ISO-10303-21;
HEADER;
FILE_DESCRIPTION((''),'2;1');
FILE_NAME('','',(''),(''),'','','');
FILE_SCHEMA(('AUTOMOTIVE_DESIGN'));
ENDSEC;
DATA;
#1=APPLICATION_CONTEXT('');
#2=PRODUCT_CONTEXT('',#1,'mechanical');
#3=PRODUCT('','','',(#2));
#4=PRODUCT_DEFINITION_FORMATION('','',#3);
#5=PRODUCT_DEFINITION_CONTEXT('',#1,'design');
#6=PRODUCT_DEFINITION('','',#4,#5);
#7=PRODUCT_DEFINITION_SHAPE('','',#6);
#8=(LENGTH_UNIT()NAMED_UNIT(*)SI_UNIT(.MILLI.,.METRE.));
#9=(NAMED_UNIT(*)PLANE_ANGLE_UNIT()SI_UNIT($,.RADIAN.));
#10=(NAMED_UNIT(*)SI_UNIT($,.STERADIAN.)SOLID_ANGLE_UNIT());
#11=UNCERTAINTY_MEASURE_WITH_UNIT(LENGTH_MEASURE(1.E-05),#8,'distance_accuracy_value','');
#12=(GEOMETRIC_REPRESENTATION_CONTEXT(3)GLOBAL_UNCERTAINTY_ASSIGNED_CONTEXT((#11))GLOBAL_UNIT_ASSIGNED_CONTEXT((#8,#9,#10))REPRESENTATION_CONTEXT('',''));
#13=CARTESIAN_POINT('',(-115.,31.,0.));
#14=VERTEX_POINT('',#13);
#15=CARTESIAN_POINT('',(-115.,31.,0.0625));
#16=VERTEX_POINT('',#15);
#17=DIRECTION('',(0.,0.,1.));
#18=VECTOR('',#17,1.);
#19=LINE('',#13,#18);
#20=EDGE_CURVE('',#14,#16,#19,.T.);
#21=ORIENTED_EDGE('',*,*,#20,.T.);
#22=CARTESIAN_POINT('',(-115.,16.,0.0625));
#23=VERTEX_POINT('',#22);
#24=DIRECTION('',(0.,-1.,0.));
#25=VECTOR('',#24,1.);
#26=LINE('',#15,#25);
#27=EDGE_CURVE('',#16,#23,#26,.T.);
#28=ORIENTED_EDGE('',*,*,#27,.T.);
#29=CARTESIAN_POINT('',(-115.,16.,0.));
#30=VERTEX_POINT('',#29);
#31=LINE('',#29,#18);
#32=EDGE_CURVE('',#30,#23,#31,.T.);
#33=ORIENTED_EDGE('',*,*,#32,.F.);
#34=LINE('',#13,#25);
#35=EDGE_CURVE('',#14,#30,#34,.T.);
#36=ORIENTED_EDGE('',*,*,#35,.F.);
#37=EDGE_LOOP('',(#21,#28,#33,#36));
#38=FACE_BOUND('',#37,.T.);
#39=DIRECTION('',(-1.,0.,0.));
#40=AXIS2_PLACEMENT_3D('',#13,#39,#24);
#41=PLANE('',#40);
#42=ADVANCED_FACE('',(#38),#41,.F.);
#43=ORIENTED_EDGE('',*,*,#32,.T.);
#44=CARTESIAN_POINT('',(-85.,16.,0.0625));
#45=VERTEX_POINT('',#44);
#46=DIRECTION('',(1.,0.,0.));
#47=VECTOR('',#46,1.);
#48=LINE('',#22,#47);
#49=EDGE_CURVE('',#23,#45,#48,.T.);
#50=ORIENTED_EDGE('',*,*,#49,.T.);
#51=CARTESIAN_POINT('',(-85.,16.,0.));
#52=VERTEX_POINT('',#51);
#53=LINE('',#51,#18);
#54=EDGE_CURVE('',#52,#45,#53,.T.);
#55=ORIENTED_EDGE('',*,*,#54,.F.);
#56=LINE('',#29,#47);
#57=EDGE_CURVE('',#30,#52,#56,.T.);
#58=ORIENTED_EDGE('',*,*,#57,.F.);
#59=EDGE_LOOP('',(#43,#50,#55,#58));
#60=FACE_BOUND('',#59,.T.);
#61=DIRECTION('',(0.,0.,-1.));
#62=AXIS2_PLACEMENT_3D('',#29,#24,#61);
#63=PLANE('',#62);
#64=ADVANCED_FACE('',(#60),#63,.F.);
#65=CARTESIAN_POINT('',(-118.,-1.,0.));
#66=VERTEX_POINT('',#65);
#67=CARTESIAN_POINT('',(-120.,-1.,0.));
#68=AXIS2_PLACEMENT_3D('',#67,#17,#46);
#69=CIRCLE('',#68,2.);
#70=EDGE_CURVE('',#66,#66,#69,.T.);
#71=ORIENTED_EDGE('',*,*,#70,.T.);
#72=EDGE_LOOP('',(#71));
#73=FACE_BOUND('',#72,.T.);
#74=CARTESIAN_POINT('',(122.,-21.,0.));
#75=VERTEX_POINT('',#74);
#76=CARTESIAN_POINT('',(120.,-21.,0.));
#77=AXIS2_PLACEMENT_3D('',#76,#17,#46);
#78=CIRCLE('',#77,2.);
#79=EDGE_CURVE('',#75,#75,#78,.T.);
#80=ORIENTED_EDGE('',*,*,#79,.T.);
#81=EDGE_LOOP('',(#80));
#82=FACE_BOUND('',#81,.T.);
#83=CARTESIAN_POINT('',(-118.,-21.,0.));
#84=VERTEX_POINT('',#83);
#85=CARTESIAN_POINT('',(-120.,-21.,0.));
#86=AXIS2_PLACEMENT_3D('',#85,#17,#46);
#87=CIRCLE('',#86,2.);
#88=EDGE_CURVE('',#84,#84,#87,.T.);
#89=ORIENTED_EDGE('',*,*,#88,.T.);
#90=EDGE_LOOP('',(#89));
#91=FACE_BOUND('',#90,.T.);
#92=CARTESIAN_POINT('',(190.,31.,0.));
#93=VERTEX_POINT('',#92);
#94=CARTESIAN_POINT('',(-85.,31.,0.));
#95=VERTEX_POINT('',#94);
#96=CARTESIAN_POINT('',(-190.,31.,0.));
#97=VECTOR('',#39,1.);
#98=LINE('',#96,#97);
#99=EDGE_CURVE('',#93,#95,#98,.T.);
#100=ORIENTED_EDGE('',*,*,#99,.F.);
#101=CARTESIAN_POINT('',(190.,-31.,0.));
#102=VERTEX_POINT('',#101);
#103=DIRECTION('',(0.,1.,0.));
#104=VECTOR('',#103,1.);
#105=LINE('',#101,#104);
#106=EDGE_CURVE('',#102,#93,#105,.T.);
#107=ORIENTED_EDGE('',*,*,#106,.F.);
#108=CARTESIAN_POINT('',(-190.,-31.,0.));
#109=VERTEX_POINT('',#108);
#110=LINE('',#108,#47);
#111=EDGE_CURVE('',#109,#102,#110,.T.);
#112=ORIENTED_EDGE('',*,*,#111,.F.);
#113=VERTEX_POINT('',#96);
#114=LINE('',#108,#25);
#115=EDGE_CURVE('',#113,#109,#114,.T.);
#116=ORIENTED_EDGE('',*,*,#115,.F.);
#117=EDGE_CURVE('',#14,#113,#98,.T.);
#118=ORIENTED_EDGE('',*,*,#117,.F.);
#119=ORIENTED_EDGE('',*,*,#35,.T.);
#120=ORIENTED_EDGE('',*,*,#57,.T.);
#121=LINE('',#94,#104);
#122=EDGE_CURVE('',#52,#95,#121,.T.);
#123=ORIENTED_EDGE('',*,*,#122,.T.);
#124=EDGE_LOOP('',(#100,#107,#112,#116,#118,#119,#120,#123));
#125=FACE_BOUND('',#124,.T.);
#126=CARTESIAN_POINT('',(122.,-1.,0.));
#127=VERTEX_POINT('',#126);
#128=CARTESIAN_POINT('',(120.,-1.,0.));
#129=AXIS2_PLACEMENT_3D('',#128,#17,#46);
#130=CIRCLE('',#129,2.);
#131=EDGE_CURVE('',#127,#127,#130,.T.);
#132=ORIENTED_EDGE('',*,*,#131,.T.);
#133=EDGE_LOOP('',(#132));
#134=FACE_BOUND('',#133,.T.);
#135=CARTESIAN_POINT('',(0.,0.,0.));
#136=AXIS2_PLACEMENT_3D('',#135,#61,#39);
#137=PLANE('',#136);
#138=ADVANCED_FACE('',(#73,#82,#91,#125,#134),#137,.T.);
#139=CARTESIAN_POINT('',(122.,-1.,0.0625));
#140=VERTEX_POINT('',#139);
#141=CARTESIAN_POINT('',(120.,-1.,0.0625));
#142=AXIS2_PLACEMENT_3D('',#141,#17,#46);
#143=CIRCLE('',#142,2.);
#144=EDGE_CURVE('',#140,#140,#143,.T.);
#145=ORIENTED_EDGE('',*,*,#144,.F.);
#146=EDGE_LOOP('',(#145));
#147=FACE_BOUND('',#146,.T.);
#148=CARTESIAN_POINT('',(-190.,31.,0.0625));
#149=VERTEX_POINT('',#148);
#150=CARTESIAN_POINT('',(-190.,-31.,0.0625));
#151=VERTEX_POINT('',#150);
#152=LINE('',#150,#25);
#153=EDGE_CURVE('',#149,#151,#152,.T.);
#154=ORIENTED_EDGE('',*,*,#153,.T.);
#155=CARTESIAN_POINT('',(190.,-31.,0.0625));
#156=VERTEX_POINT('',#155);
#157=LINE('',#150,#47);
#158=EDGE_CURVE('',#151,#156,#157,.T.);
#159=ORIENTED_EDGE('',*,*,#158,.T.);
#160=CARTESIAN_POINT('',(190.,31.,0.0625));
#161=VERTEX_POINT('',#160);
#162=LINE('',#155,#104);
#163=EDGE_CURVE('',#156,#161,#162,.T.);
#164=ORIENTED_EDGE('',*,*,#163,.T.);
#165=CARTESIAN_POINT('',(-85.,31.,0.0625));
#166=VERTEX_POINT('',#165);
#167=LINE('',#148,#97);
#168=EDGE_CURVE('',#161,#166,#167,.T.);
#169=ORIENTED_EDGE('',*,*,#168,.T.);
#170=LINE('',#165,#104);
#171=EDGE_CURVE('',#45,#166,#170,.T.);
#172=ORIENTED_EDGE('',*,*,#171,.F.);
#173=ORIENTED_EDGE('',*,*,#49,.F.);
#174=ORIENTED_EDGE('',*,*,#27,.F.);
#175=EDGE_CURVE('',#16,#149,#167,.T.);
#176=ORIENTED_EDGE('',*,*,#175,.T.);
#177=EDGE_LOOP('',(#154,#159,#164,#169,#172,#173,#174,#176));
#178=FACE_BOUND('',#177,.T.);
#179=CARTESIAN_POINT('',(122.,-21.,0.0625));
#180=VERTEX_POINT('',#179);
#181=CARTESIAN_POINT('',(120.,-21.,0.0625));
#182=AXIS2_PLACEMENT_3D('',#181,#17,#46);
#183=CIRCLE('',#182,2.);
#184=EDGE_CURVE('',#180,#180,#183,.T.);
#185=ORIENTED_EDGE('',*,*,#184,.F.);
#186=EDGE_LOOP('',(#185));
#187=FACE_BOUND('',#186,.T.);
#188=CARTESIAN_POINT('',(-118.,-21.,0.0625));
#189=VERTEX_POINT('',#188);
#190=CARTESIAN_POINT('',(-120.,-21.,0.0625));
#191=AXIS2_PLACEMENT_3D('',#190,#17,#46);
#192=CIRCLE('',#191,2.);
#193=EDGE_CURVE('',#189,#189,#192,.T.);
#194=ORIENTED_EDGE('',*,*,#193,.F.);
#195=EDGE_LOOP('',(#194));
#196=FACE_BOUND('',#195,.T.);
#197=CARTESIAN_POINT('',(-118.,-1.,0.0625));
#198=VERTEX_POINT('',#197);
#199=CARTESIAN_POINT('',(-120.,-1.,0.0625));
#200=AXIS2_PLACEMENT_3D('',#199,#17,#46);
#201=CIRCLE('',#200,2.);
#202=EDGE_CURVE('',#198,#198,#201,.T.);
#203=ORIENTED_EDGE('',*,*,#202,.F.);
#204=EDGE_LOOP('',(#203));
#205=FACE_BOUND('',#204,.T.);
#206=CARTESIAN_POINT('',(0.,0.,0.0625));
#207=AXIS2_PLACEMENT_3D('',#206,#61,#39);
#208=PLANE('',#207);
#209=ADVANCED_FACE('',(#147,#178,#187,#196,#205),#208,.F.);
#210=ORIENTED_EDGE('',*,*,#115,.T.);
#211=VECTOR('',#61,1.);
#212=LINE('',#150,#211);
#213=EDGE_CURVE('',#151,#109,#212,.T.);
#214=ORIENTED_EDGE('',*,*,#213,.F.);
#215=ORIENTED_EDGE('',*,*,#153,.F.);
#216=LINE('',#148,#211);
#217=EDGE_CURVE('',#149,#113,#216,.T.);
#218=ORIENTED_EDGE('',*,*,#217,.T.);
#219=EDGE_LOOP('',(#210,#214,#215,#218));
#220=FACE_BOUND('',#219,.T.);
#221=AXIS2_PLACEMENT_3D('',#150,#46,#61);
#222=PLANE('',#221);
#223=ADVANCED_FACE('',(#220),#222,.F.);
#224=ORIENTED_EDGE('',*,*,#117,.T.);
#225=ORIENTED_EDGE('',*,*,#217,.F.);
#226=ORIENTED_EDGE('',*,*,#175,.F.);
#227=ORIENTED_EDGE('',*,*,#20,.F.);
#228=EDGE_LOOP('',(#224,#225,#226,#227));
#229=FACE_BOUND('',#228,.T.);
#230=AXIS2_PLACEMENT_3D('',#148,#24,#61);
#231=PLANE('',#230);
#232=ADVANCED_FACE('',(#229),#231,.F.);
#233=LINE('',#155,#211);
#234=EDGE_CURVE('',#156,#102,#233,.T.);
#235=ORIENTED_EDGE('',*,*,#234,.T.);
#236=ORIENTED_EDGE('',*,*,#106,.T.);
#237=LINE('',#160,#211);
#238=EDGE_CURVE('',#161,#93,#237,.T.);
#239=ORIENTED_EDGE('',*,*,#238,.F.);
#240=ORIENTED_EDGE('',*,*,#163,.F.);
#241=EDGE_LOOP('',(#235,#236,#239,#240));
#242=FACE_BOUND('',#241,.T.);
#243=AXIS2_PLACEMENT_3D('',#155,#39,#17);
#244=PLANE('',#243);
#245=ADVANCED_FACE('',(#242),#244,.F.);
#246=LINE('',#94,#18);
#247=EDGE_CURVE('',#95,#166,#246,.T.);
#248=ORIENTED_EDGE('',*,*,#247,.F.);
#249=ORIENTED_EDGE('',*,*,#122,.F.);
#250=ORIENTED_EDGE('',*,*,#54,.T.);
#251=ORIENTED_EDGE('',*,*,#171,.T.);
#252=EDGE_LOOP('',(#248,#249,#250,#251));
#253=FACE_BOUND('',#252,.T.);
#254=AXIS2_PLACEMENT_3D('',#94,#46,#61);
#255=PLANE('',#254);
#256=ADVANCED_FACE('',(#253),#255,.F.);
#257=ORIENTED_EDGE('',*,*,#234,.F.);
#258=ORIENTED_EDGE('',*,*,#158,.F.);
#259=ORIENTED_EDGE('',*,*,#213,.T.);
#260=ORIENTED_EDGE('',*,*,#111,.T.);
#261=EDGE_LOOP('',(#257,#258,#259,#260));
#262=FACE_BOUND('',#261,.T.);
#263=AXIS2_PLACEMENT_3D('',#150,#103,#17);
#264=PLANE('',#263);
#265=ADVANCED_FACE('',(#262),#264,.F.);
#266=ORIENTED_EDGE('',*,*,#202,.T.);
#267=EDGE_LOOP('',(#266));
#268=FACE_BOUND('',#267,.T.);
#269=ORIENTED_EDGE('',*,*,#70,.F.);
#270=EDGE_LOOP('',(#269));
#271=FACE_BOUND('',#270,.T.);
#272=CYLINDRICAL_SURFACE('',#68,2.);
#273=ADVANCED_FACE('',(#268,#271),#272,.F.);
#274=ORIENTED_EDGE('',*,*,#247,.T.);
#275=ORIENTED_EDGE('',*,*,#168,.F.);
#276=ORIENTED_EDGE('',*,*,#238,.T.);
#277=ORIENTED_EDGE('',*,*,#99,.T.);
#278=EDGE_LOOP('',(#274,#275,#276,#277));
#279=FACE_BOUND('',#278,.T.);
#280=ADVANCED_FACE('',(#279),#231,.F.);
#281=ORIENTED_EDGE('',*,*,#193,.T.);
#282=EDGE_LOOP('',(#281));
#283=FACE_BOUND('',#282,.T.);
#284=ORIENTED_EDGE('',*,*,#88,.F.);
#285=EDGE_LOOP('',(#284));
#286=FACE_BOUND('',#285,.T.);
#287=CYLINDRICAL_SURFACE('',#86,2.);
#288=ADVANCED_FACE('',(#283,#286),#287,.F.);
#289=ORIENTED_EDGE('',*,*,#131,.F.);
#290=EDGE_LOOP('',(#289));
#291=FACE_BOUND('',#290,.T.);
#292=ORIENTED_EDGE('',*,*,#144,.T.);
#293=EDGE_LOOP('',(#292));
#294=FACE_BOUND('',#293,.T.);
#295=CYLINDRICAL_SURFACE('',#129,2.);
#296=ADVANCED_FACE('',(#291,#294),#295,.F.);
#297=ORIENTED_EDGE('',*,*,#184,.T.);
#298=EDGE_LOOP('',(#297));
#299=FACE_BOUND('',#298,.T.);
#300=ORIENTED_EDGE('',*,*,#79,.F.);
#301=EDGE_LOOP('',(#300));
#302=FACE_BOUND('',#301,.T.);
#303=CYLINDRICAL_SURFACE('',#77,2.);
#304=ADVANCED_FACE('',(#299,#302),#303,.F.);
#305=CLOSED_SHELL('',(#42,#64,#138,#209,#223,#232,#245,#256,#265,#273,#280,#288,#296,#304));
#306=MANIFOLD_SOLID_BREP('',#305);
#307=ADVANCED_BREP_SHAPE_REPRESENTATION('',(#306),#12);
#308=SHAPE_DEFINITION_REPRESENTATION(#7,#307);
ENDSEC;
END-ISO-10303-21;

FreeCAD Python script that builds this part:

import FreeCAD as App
import Part
import Sketcher

doc = App.newDocument("Part")
params = doc.addObject("Spreadsheet::Sheet", "Params")
for row, (alias, value) in enumerate([
    ("sketch1_width", "380 mm"),
    ("sketch1_height", "62 mm"),
    ("pad1_length", "0.0625 mm"),
    ("sketch2_diameter", "4 mm"),
    ("pocket1_length", "0.0625 mm"),
    ("sketch3_width", "30 mm"),
    ("sketch3_height", "15 mm"),
    ("pocket2_length", "0.0625 mm"),
], start=1):
    params.set(f"A{row}", alias)
    params.set(f"B{row}", "=" + value)
    params.setAlias(f"B{row}", alias)

body = doc.addObject("PartDesign::Body", "Body")

sketch1 = doc.addObject("Sketcher::SketchObject", "Sketch")
body.addObject(sketch1)
sketch1.AttachmentSupport = (doc.XY_Plane, [""])
sketch1.MapMode = "FlatFace"
sketch1.addGeometry(Part.LineSegment(App.Vector(-190, 31, 0), App.Vector(-190, -31, 0)), False)
sketch1.addGeometry(Part.LineSegment(App.Vector(-190, -31, 0), App.Vector(190, -31, 0)), False)
sketch1.addGeometry(Part.LineSegment(App.Vector(190, -31, 0), App.Vector(190, 31, 0)), False)
sketch1.addGeometry(Part.LineSegment(App.Vector(190, 31, 0), App.Vector(-190, 31, 0)), False)
sketch1.addConstraint(Sketcher.Constraint("Coincident", 0, 2, 1, 1))
sketch1.addConstraint(Sketcher.Constraint("Coincident", 1, 2, 2, 1))
sketch1.addConstraint(Sketcher.Constraint("Coincident", 2, 2, 3, 1))
sketch1.addConstraint(Sketcher.Constraint("Coincident", 3, 2, 0, 1))
sketch1.addConstraint(Sketcher.Constraint("Vertical", 0))
sketch1.addConstraint(Sketcher.Constraint("Horizontal", 1))
sketch1.addConstraint(Sketcher.Constraint("Vertical", 2))
sketch1.addConstraint(Sketcher.Constraint("Horizontal", 3))
sketch1.addConstraint(Sketcher.Constraint("Symmetric", 0, 2, 2, 2, -1, 1))
sketch1.addConstraint(Sketcher.Constraint("DistanceX", 1, 1, 1, 2, 380.0))
sketch1.addConstraint(Sketcher.Constraint("DistanceY", 0, 2, 0, 1, 62.0))
sketch1.setExpression("Constraints[9]", "Params.sketch1_width")
sketch1.setExpression("Constraints[10]", "Params.sketch1_height")
pad1 = doc.addObject("PartDesign::Pad", "Pad")
body.addObject(pad1)
pad1.Profile = sketch1
pad1.setExpression("Length", "Params.pad1_length")

sketch2 = doc.addObject("Sketcher::SketchObject", "Sketch001")
body.addObject(sketch2)
sketch2.AttachmentSupport = (doc.XY_Plane, [""])
sketch2.MapMode = "FlatFace"
sketch2.AttachmentOffset = App.Placement(App.Vector(0, 0, 0.0625), App.Rotation())
sketch2.addGeometry(Part.Circle(App.Vector(-120, -1, 0), App.Vector(0, 0, 1), 2), False)
sketch2.addGeometry(Part.Circle(App.Vector(120, -1, 0), App.Vector(0, 0, 1), 2), False)
sketch2.addGeometry(Part.Circle(App.Vector(120, -21, 0), App.Vector(0, 0, 1), 2), False)
sketch2.addGeometry(Part.Circle(App.Vector(-120, -21, 0), App.Vector(0, 0, 1), 2), False)
sketch2.addConstraint(Sketcher.Constraint("Equal", 0, 1))
sketch2.addConstraint(Sketcher.Constraint("Equal", 1, 2))
sketch2.addConstraint(Sketcher.Constraint("Equal", 2, 3))
sketch2.addConstraint(Sketcher.Constraint("Symmetric", 0, 3, 1, 3, -2))
sketch2.addConstraint(Sketcher.Constraint("Symmetric", 2, 3, 3, 3, -2))
sketch2.addConstraint(Sketcher.Constraint("Vertical", 1, 3, 2, 3))
sketch2.addConstraint(Sketcher.Constraint("Diameter", 0, 4.0))
sketch2.addConstraint(Sketcher.Constraint("DistanceX", 0, 3, -1, 1, 120.0))
sketch2.addConstraint(Sketcher.Constraint("DistanceY", 0, 3, -1, 1, 1.0))
sketch2.addConstraint(Sketcher.Constraint("DistanceY", 2, 3, -1, 1, 21.0))
sketch2.setExpression("Constraints[6]", "Params.sketch2_diameter")
pocket1 = doc.addObject("PartDesign::Pocket", "Pocket")
body.addObject(pocket1)
pocket1.Profile = sketch2
pocket1.setExpression("Length", "Params.pocket1_length")

sketch3 = doc.addObject("Sketcher::SketchObject", "Sketch002")
body.addObject(sketch3)
sketch3.AttachmentSupport = (doc.XY_Plane, [""])
sketch3.MapMode = "FlatFace"
sketch3.AttachmentOffset = App.Placement(App.Vector(0, 0, 0.0625), App.Rotation())
sketch3.addGeometry(Part.LineSegment(App.Vector(-115, 31, 0), App.Vector(-115, 16, 0)), False)
sketch3.addGeometry(Part.LineSegment(App.Vector(-115, 16, 0), App.Vector(-85, 16, 0)), False)
sketch3.addGeometry(Part.LineSegment(App.Vector(-85, 16, 0), App.Vector(-85, 31, 0)), False)
sketch3.addGeometry(Part.LineSegment(App.Vector(-85, 31, 0), App.Vector(-115, 31, 0)), False)
sketch3.addConstraint(Sketcher.Constraint("Coincident", 0, 2, 1, 1))
sketch3.addConstraint(Sketcher.Constraint("Coincident", 1, 2, 2, 1))
sketch3.addConstraint(Sketcher.Constraint("Coincident", 2, 2, 3, 1))
sketch3.addConstraint(Sketcher.Constraint("Coincident", 3, 2, 0, 1))
sketch3.addConstraint(Sketcher.Constraint("Vertical", 0))
sketch3.addConstraint(Sketcher.Constraint("Horizontal", 1))
sketch3.addConstraint(Sketcher.Constraint("Vertical", 2))
sketch3.addConstraint(Sketcher.Constraint("Horizontal", 3))
sketch3.addConstraint(Sketcher.Constraint("DistanceX", 1, 1, 1, 2, 30.0))
sketch3.addConstraint(Sketcher.Constraint("DistanceY", 0, 2, 0, 1, 15.0))
sketch3.addConstraint(Sketcher.Constraint("DistanceX", 0, 2, -1, 1, 115.0))
sketch3.addConstraint(Sketcher.Constraint("DistanceY", -1, 1, 0, 2, 16.0))
sketch3.setExpression("Constraints[8]", "Params.sketch3_width")
sketch3.setExpression("Constraints[9]", "Params.sketch3_height")
pocket2 = doc.addObject("PartDesign::Pocket", "Pocket001")
body.addObject(pocket2)
pocket2.Profile = sketch3
pocket2.setExpression("Length", "Params.pocket2_length")

doc.recompute()
